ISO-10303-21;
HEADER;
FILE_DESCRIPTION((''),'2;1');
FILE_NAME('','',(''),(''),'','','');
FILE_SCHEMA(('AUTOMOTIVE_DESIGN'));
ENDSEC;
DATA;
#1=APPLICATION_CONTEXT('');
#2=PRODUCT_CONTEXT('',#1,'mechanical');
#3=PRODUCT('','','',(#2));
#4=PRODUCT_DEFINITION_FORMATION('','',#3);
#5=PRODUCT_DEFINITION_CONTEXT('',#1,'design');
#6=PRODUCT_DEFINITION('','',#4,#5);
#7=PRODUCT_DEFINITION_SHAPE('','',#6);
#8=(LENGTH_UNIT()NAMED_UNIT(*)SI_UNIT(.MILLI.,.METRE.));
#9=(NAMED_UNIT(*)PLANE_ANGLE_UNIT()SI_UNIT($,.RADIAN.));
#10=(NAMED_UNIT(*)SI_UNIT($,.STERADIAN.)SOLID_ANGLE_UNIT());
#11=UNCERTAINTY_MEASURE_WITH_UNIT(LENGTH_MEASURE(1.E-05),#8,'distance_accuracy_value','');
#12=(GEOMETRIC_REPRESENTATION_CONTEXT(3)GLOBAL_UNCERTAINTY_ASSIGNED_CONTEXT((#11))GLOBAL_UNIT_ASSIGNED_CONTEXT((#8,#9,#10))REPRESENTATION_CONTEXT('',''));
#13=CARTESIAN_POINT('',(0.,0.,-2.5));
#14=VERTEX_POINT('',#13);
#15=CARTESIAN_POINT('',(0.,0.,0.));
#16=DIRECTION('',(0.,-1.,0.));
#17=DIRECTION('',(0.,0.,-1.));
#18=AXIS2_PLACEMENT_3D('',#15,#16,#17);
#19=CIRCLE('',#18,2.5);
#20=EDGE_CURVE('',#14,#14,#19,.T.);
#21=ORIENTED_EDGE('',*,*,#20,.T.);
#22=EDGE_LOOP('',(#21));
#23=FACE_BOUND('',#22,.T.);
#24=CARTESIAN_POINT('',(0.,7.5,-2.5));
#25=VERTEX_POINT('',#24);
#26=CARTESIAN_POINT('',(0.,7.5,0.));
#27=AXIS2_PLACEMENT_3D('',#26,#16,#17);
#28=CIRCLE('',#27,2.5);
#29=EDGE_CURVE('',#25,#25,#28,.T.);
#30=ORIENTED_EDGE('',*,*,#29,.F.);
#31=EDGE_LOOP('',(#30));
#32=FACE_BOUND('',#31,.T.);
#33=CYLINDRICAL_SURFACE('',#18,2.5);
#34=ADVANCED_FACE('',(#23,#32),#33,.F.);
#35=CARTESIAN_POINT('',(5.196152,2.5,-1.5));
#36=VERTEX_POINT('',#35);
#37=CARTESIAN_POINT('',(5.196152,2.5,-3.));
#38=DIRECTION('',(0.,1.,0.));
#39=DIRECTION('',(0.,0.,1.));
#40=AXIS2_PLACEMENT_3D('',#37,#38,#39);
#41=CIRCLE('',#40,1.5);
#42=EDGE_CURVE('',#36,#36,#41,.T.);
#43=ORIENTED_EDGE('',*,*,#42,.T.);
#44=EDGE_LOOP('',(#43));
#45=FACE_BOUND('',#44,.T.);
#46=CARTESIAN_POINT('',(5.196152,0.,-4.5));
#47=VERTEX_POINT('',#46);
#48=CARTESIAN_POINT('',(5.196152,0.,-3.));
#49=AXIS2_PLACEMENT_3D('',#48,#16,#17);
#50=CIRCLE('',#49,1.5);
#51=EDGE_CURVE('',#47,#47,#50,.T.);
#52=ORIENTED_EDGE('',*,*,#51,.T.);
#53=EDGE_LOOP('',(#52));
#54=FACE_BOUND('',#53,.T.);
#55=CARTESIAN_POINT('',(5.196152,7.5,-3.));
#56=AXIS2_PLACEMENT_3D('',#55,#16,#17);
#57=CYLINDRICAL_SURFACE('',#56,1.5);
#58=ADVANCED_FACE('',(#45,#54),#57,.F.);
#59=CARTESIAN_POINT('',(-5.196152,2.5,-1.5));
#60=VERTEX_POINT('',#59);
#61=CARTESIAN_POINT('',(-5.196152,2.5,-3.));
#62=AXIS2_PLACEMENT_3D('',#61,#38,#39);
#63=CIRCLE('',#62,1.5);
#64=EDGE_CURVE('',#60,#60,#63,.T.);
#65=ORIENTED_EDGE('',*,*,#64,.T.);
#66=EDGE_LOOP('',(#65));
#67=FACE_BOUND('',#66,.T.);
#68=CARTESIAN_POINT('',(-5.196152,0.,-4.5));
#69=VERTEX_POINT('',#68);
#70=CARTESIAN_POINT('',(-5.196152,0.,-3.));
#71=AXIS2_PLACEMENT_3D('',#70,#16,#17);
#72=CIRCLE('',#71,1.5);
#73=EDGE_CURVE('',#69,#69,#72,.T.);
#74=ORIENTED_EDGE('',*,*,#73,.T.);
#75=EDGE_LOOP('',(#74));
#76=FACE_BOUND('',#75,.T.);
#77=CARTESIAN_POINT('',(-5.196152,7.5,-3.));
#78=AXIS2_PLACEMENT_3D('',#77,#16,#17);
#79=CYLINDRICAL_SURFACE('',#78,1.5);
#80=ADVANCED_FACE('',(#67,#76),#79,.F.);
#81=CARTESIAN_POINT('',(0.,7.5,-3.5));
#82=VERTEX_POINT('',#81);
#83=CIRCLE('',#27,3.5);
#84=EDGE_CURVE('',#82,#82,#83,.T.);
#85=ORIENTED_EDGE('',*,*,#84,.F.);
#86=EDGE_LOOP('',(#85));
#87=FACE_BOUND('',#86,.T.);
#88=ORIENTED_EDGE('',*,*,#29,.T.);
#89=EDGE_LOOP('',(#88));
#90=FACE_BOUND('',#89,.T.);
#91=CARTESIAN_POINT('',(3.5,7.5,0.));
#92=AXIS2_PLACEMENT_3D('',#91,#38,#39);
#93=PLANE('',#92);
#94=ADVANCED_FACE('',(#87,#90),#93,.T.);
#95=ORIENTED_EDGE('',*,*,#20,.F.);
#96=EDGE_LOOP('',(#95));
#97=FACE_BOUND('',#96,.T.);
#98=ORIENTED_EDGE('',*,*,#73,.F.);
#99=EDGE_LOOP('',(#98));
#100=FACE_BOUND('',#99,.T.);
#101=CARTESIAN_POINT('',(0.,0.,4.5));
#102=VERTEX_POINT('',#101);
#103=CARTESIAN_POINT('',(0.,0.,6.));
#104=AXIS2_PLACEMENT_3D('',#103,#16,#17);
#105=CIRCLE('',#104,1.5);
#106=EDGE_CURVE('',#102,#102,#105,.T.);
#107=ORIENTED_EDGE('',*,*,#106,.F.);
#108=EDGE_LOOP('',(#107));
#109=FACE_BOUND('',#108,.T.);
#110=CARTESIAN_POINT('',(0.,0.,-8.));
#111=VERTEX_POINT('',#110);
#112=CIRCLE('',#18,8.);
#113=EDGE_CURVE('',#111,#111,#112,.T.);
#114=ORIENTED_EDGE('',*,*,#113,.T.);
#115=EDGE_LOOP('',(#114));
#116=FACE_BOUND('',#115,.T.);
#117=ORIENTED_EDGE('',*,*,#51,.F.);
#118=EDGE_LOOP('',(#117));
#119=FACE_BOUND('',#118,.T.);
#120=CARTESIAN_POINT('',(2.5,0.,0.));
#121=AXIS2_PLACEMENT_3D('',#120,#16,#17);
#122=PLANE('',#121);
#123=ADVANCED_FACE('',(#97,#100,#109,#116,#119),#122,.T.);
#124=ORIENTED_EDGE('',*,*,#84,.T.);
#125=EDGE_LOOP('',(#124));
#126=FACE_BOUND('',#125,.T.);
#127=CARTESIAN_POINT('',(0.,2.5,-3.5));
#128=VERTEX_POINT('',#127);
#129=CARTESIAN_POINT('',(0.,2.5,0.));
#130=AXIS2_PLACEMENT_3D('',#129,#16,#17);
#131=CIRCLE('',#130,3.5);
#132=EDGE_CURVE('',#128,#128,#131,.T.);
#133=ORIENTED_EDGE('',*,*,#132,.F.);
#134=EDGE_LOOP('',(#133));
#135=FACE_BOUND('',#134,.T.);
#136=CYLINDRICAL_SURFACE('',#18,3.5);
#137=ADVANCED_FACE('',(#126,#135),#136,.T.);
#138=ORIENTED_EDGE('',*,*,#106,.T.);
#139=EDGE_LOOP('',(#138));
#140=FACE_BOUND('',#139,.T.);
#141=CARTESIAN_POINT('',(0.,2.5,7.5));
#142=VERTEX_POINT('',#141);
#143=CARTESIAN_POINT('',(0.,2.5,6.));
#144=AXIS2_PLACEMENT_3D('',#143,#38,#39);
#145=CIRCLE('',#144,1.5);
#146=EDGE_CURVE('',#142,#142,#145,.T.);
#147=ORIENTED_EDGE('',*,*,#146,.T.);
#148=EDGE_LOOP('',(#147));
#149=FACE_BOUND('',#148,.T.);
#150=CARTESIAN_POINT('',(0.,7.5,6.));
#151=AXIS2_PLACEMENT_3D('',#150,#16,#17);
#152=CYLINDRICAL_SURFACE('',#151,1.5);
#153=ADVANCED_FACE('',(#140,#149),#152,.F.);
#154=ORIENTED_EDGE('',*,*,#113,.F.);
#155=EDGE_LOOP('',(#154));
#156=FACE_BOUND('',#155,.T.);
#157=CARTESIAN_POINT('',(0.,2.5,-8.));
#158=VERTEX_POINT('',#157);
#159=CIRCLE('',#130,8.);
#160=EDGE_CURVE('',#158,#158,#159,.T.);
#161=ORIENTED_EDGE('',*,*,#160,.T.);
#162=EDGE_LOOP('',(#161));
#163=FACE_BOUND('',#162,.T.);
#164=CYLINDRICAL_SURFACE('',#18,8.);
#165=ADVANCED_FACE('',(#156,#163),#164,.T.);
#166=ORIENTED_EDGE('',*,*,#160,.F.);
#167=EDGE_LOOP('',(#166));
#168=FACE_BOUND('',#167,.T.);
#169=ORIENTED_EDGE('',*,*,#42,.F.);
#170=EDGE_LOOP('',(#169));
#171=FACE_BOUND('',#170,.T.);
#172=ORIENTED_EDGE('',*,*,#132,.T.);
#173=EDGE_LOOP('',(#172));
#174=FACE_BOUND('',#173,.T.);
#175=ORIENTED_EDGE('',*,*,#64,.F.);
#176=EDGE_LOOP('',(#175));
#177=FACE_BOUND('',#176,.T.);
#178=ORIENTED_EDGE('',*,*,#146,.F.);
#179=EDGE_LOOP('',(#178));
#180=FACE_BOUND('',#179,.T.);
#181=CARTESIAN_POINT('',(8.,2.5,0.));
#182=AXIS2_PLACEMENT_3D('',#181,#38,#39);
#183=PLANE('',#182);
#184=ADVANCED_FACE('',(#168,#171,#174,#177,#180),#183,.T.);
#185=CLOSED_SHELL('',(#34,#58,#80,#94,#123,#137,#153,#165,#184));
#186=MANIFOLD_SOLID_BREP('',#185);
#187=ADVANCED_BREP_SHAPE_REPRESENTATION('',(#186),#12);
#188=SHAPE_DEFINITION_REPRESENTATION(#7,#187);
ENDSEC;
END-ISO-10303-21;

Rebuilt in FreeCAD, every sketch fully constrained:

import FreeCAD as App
import Part
import Sketcher
from FreeCAD import Vector


def add_polygon(sketch, points):
    """Adds a closed chain of lines whose ends are joined by coincident constraints."""
    first, n = sketch.GeometryCount, len(points)
    for a, b in zip(points, points[1:] + points[:1]):
        sketch.addGeometry(Part.LineSegment(App.Vector(*a, 0), App.Vector(*b, 0)), False)
    for i in range(n):
        sketch.addConstraint(Sketcher.Constraint("Coincident", first + i, 2, first + (i + 1) % n, 1))

doc = App.newDocument("Part")
body = doc.addObject("PartDesign::Body", "Body")

# Sketch on XY plane
sketch1 = body.newObject("Sketcher::SketchObject", "Sketch")
sketch1.AttachmentSupport = (doc.getObject("XY_Plane"), [""])
sketch1.MapMode = "FlatFace"
add_polygon(sketch1, [(2.5, 0), (8, 0), (8, 2.5), (3.5, 2.5), (3.5, 7.5), (2.5, 7.5)])  # lines 0-5
sketch1.addConstraint(Sketcher.Constraint("Horizontal", 0))
sketch1.addConstraint(Sketcher.Constraint("Vertical", 1))
sketch1.addConstraint(Sketcher.Constraint("Horizontal", 2))
sketch1.addConstraint(Sketcher.Constraint("Vertical", 3))
sketch1.addConstraint(Sketcher.Constraint("Horizontal", 4))
sketch1.addConstraint(Sketcher.Constraint("Vertical", 5))
sketch1.addConstraint(Sketcher.Constraint("PointOnObject", 0, 2, -1))
sketch1.addConstraint(Sketcher.Constraint("DistanceX", 4, 2, 4, 1, 1.0))
sketch1.addConstraint(Sketcher.Constraint("DistanceY", 3, 1, 3, 2, 5.0))
sketch1.addConstraint(Sketcher.Constraint("DistanceX", 0, 1, 0, 2, 5.5))
sketch1.addConstraint(Sketcher.Constraint("DistanceY", 1, 1, 1, 2, 2.5))
sketch1.addConstraint(Sketcher.Constraint("DistanceX", -1, 1, 0, 2, 8.0))
revolution = body.newObject("PartDesign::Revolution", "Revolution")
revolution.Profile = sketch1
revolution.ReferenceAxis = (sketch1, ["V_Axis"])
revolution.Angle = 360

# Sketch on XZ plane
sketch2 = body.newObject("Sketcher::SketchObject", "Sketch001")
sketch2.AttachmentSupport = (doc.getObject("XZ_Plane"), [""])
sketch2.MapMode = "FlatFace"
sketch2.addGeometry(Part.Circle(Vector(0, 6, 0), Vector(0, 0, 1), 1.5), False)
sketch2.addGeometry(Part.Circle(Vector(5.196152, -3, 0), Vector(0, 0, 1), 1.5), False)
sketch2.addGeometry(Part.Circle(Vector(-5.196152, -3, 0), Vector(0, 0, 1), 1.5), False)
sketch2.addConstraint(Sketcher.Constraint("Equal", 0, 1))
sketch2.addConstraint(Sketcher.Constraint("Equal", 1, 2))
sketch2.addConstraint(Sketcher.Constraint("Symmetric", 1, 3, 2, 3, -2))
sketch2.addConstraint(Sketcher.Constraint("PointOnObject", 0, 3, -2))
sketch2.addConstraint(Sketcher.Constraint("Diameter", 0, 3.0))
sketch2.addConstraint(Sketcher.Constraint("DistanceY", -1, 1, 0, 3, 6.0))
sketch2.addConstraint(Sketcher.Constraint("DistanceY", 1, 3, -1, 1, 3.0))
sketch2.addConstraint(Sketcher.Constraint("DistanceX", -1, 1, 1, 3, 5.196152))
pocket1 = body.newObject("PartDesign::Pocket", "Pocket")
pocket1.Profile = sketch2
pocket1.Type = "ThroughAll"

doc.recompute()
